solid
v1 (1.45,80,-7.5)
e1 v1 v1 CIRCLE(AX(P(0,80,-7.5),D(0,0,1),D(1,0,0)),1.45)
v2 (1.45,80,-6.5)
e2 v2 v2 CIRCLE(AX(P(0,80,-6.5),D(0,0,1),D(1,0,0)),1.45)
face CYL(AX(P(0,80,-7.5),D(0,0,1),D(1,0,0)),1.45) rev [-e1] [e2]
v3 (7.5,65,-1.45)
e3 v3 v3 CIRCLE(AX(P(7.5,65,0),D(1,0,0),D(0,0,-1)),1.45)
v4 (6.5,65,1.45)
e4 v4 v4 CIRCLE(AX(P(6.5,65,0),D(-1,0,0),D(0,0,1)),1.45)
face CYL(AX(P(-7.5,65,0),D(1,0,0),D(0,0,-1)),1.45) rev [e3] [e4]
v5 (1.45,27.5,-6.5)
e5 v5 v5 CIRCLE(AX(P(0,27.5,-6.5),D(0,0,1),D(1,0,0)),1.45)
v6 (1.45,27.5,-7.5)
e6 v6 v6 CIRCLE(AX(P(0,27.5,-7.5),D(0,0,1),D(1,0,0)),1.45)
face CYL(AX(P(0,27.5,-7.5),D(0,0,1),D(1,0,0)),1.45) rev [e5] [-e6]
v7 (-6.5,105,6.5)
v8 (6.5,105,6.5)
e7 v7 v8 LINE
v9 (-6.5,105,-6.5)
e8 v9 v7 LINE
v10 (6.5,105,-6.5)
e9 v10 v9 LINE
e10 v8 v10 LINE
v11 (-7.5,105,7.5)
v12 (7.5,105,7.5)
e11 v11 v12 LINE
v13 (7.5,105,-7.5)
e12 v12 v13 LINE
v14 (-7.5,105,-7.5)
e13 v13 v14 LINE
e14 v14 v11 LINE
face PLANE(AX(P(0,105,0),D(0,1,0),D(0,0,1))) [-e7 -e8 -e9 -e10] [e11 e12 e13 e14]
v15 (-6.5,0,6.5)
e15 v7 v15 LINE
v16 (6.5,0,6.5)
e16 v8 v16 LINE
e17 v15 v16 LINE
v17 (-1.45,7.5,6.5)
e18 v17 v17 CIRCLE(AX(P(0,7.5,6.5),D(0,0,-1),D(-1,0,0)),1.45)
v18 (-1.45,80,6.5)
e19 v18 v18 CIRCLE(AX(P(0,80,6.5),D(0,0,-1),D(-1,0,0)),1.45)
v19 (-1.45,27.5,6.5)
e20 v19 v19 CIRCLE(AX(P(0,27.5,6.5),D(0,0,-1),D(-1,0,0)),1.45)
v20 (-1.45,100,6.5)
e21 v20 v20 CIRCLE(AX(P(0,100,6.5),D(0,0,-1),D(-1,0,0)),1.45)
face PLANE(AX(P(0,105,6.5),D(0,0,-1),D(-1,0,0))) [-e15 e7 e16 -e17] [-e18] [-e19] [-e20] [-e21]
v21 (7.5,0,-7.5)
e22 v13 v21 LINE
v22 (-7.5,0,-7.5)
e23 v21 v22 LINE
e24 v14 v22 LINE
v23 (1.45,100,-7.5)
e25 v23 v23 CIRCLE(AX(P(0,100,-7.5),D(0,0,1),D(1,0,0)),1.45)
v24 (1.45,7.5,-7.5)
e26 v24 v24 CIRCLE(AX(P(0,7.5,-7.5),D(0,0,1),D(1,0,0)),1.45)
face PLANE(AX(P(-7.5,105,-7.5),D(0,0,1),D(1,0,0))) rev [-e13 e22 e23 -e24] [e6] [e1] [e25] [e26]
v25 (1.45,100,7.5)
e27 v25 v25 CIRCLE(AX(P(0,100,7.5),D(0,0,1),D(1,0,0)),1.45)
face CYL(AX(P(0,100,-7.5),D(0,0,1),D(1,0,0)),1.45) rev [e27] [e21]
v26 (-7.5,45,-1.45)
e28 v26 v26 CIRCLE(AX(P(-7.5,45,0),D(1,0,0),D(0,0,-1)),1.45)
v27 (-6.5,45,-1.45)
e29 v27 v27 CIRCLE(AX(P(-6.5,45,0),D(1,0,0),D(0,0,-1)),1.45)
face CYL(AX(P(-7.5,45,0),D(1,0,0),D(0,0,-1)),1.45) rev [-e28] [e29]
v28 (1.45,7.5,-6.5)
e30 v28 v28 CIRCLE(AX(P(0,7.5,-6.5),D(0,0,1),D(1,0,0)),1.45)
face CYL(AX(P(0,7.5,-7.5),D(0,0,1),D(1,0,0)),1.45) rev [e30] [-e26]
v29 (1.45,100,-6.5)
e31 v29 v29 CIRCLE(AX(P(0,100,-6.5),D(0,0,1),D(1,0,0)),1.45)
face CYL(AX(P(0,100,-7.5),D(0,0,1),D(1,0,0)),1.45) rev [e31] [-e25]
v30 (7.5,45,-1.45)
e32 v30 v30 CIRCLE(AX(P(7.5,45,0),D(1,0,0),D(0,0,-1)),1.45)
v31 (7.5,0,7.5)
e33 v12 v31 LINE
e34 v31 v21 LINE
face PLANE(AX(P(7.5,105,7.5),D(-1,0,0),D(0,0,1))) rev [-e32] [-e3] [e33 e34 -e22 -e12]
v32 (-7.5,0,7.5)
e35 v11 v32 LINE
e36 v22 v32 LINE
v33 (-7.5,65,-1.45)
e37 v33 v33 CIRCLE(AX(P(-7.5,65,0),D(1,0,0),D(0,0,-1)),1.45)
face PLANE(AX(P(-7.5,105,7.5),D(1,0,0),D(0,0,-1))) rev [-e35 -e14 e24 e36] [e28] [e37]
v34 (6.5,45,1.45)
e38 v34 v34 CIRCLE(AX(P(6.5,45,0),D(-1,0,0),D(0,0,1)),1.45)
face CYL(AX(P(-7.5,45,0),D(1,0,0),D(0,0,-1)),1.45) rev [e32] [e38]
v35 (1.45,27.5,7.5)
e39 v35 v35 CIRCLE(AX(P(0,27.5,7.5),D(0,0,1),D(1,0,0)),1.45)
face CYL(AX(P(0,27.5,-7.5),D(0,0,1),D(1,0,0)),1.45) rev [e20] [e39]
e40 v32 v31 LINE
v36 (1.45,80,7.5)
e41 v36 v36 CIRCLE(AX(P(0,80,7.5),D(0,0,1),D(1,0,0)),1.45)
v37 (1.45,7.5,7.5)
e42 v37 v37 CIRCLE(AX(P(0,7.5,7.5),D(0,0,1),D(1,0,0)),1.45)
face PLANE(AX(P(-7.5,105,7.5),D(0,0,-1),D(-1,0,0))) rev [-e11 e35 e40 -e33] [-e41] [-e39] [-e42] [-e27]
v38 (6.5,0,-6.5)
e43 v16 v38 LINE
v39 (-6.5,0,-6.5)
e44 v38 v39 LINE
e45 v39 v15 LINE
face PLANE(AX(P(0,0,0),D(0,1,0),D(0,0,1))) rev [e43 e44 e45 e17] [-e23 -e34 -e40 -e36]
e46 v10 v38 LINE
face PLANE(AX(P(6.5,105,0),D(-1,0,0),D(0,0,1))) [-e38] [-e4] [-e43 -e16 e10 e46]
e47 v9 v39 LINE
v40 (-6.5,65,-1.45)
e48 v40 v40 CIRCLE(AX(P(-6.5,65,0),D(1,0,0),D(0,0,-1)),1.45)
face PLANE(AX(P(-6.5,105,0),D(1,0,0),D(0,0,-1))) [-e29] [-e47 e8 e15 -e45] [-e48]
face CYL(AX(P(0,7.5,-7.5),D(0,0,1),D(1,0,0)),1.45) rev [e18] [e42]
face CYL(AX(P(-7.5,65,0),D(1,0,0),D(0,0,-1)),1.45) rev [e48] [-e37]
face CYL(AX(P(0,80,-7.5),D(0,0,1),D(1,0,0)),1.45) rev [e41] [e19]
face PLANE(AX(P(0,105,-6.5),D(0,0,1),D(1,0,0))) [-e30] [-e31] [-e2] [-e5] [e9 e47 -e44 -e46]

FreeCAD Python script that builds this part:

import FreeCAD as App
import Part
import Sketcher
from FreeCAD import Vector
Q = App.Units.Quantity

doc = App.newDocument("Part")
params = doc.addObject("Spreadsheet::Sheet", "Params")
for row, (alias, value) in enumerate([
    ("sketch1_width", "15 mm"),
    ("sketch1_width2", "13 mm"),
    ("pad1_length", "105 mm"),
    ("sketch2_diameter", "2.9 mm"),
    ("sketch3_diameter", "2.9 mm"),
], start=1):
    params.set(f"A{row}", alias)
    params.set(f"B{row}", "=" + value)
    params.setAlias(f"B{row}", alias)

body = doc.addObject("PartDesign::Body", "Body")

sketch1 = body.newObject("Sketcher::SketchObject", "Sketch")
sketch1.AttachmentSupport = (doc.getObject("XZ_Plane"), [""])
sketch1.MapMode = "FlatFace"
sketch1.addGeometry([
    Part.LineSegment(Vector(-8, -8, 0), Vector(-8, 8, 0)),
    Part.LineSegment(Vector(-8, 8, 0), Vector(8, 8, 0)),
    Part.LineSegment(Vector(8, 8, 0), Vector(8, -8, 0)),
    Part.LineSegment(Vector(8, -8, 0), Vector(-8, -8, 0)),
    Part.LineSegment(Vector(6, 6, 0), Vector(-6, 6, 0)),
    Part.LineSegment(Vector(-6, 6, 0), Vector(-6, -6, 0)),
    Part.LineSegment(Vector(-6, -6, 0), Vector(6, -6, 0)),
    Part.LineSegment(Vector(6, -6, 0), Vector(6, 6, 0)),
], False)
sketch1.addConstraint([
    Sketcher.Constraint("Coincident", 0, 2, 1, 1),
    Sketcher.Constraint("Coincident", 1, 2, 2, 1),
    Sketcher.Constraint("Coincident", 2, 2, 3, 1),
    Sketcher.Constraint("Coincident", 3, 2, 0, 1),
    Sketcher.Constraint("Coincident", 4, 2, 5, 1),
    Sketcher.Constraint("Coincident", 5, 2, 6, 1),
    Sketcher.Constraint("Coincident", 6, 2, 7, 1),
    Sketcher.Constraint("Coincident", 7, 2, 4, 1),
    Sketcher.Constraint("Vertical", 0),
    Sketcher.Constraint("Horizontal", 1),
    Sketcher.Constraint("Vertical", 2),
    Sketcher.Constraint("Horizontal", 3),
    Sketcher.Constraint("Horizontal", 4),
    Sketcher.Constraint("Vertical", 5),
    Sketcher.Constraint("Horizontal", 6),
    Sketcher.Constraint("Vertical", 7),
    Sketcher.Constraint("Symmetric", 0, 2, 2, 2, -1, 1),
    Sketcher.Constraint("Symmetric", 4, 2, 6, 2, -1, 1),
    Sketcher.Constraint("Equal", 3, 0),
    Sketcher.Constraint("Equal", 6, 5),
    Sketcher.Constraint("DistanceX", 1, 1, 1, 2, Q("15 mm")),
    Sketcher.Constraint("DistanceX", 4, 2, 4, 1, Q("13 mm")),
])
sketch1.setExpression("Constraints[20]", "Params.sketch1_width")
sketch1.setExpression("Constraints[21]", "Params.sketch1_width2")
pad1 = body.newObject("PartDesign::Pad", "Pad")
pad1.Profile = sketch1
pad1.setExpression("Length", "Params.pad1_length")
pad1.Reversed = True

sketch2 = body.newObject("Sketcher::SketchObject", "Sketch001")
sketch2.AttachmentSupport = (doc.getObject("XY_Plane"), [""])
sketch2.MapMode = "FlatFace"
sketch2.AttachmentOffset = App.Placement(Vector(0, 0, 7.5), App.Rotation())
sketch2.addGeometry([
    Part.Circle(Vector(0, 7.5, 0), Vector(0, 0, 1), 1.4),
    Part.Circle(Vector(0, 27.5, 0), Vector(0, 0, 1), 1.4),
    Part.Circle(Vector(0, 100, 0), Vector(0, 0, 1), 1.4),
    Part.Circle(Vector(0, 80, 0), Vector(0, 0, 1), 1.4),
], False)
sketch2.addConstraint([
    Sketcher.Constraint("Equal", 0, 1),
    Sketcher.Constraint("Equal", 1, 2),
    Sketcher.Constraint("Equal", 2, 3),
    Sketcher.Constraint("PointOnObject", 0, 3, -2),
    Sketcher.Constraint("PointOnObject", 1, 3, -2),
    Sketcher.Constraint("PointOnObject", 2, 3, -2),
    Sketcher.Constraint("PointOnObject", 3, 3, -2),
    Sketcher.Constraint("Diameter", 0, Q("2.9 mm")),
    Sketcher.Constraint("DistanceY", -1, 1, 2, 3, Q("100 mm")),
    Sketcher.Constraint("DistanceY", -1, 1, 3, 3, Q("80 mm")),
    Sketcher.Constraint("DistanceY", 0, 3, 1, 3, Q("20 mm")),
    Sketcher.Constraint("DistanceY", -1, 1, 0, 3, Q("7.5 mm")),
])
sketch2.setExpression("Constraints[7]", "Params.sketch2_diameter")
pocket1 = body.newObject("PartDesign::Pocket", "Pocket")
pocket1.Profile = sketch2
pocket1.Type = "ThroughAll"

sketch3 = body.newObject("Sketcher::SketchObject", "Sketch002")
sketch3.AttachmentSupport = (doc.getObject("YZ_Plane"), [""])
sketch3.MapMode = "FlatFace"
sketch3.AttachmentOffset = App.Placement(Vector(0, 0, 7.5), App.Rotation())
sketch3.addGeometry([
    Part.Circle(Vector(65, 0, 0), Vector(0, 0, 1), 1.4),
    Part.Circle(Vector(45, 0, 0), Vector(0, 0, 1), 1.4),
], False)
sketch3.addConstraint([
    Sketcher.Constraint("Equal", 0, 1),
    Sketcher.Constraint("PointOnObject", 0, 3, -1),
    Sketcher.Constraint("PointOnObject", 1, 3, -1),
    Sketcher.Constraint("Diameter", 0, Q("2.9 mm")),
    Sketcher.Constraint("DistanceX", -1, 1, 0, 3, Q("65 mm")),
    Sketcher.Constraint("DistanceX", -1, 1, 1, 3, Q("45 mm")),
])
sketch3.setExpression("Constraints[3]", "Params.sketch3_diameter")
pocket2 = body.newObject("PartDesign::Pocket", "Pocket001")
pocket2.Profile = sketch3
pocket2.Type = "ThroughAll"

doc.recompute()
